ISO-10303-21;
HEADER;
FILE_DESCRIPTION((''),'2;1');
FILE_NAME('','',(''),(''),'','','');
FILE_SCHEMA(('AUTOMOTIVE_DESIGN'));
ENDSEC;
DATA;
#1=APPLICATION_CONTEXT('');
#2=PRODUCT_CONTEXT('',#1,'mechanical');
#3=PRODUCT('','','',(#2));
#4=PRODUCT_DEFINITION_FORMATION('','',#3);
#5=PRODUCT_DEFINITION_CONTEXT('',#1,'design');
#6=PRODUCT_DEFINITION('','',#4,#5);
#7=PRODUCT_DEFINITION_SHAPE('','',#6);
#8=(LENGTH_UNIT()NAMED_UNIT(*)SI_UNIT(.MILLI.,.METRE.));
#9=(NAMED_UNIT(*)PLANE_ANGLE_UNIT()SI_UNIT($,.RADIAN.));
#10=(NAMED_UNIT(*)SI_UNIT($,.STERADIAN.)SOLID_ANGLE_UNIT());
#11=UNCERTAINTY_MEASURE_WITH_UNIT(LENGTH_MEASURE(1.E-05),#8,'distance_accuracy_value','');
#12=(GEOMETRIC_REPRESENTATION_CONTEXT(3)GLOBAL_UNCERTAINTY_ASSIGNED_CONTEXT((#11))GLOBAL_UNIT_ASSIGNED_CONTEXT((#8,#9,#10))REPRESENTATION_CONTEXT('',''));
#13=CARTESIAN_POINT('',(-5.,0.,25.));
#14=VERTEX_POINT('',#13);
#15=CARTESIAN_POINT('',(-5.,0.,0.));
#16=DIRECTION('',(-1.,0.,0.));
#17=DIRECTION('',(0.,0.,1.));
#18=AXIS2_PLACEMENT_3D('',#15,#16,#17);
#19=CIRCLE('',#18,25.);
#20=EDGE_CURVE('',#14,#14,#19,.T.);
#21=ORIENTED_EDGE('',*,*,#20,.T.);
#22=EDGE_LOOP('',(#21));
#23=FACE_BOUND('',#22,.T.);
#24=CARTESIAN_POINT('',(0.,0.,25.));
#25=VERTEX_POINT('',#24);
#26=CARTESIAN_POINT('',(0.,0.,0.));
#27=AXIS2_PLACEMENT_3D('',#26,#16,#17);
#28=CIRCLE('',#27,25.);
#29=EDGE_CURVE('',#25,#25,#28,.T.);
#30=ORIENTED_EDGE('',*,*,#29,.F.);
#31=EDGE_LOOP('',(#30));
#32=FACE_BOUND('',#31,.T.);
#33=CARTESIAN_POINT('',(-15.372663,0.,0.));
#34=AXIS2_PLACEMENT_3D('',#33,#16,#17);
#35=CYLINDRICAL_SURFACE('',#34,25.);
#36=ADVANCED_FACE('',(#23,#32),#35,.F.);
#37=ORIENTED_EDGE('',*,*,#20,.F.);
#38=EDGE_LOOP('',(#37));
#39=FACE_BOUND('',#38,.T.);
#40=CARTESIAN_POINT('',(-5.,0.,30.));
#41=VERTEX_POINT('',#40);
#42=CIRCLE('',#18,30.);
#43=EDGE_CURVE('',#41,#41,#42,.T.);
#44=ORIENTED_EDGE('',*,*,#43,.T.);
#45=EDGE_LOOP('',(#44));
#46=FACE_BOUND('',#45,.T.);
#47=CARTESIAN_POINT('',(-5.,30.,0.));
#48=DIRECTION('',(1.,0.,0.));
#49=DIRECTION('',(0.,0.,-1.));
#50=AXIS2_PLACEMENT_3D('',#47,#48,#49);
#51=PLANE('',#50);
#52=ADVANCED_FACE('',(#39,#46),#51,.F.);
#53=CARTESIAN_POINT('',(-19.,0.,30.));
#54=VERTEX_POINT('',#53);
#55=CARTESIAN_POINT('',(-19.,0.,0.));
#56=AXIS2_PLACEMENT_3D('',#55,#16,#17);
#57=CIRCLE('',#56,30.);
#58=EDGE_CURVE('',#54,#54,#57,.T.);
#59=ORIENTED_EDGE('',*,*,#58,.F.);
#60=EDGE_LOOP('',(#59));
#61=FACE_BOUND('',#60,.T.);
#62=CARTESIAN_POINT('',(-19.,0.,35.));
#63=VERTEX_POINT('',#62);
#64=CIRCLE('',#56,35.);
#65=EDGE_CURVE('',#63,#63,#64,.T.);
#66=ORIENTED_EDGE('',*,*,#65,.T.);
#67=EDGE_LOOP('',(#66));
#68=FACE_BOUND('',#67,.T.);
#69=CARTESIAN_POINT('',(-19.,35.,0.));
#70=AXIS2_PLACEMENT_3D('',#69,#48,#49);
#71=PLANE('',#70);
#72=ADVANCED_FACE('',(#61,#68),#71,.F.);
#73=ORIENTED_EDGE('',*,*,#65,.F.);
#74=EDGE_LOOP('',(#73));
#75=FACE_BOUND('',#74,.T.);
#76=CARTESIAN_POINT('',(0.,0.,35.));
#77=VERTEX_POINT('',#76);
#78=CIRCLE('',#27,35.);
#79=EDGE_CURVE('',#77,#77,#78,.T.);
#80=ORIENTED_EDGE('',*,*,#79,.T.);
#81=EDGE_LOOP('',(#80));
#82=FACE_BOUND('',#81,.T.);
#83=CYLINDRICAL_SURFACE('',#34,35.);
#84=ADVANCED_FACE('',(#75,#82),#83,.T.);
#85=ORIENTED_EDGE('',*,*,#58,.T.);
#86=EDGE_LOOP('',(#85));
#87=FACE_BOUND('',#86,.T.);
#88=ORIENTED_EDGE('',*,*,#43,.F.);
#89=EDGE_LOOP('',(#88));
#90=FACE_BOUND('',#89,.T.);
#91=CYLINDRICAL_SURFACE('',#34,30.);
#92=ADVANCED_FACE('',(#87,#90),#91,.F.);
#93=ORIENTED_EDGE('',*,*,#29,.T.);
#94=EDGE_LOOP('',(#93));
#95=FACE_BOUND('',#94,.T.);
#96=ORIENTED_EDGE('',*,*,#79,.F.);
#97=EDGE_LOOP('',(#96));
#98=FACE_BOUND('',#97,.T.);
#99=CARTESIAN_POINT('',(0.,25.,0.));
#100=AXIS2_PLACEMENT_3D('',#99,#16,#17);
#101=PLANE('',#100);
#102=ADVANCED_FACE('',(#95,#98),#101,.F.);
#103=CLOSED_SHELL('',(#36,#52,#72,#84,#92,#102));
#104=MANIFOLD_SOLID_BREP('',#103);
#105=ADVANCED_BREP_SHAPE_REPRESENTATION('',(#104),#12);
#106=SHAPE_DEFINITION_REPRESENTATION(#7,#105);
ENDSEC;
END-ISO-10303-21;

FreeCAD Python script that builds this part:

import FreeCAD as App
import Part
import Sketcher

V = App.Vector
Q = App.Units.Quantity

doc = App.newDocument("Part")
body = doc.addObject("PartDesign::Body", "Body")

# Sketch on XY plane
sketch1 = body.newObject("Sketcher::SketchObject", "Sketch")
sketch1.AttachmentSupport = (doc.getObject("XY_Plane"), [""])
sketch1.MapMode = "FlatFace"
sketch1.addGeometry([
    Part.LineSegment(V(-19, 35, 0), V(-19, 30, 0)),  # 0
    Part.LineSegment(V(-19, 30, 0), V(-5, 30, 0)),  # 1
    Part.LineSegment(V(-5, 30, 0), V(-5, 25, 0)),  # 2
    Part.LineSegment(V(-5, 25, 0), V(0, 25, 0)),  # 3
    Part.LineSegment(V(0, 25, 0), V(0, 35, 0)),  # 4
    Part.LineSegment(V(0, 35, 0), V(-19, 35, 0)),  # 5
], False)
sketch1.addConstraint([
    Sketcher.Constraint("Coincident", 0, 2, 1, 1),
    Sketcher.Constraint("Coincident", 1, 2, 2, 1),
    Sketcher.Constraint("Coincident", 2, 2, 3, 1),
    Sketcher.Constraint("Coincident", 3, 2, 4, 1),
    Sketcher.Constraint("Coincident", 4, 2, 5, 1),
    Sketcher.Constraint("Coincident", 5, 2, 0, 1),
    Sketcher.Constraint("Vertical", 0),
    Sketcher.Constraint("Horizontal", 1),
    Sketcher.Constraint("Vertical", 2),
    Sketcher.Constraint("Horizontal", 3),
    Sketcher.Constraint("Vertical", 4),
    Sketcher.Constraint("Horizontal", 5),
    Sketcher.Constraint("PointOnObject", 3, 2, -2),
    Sketcher.Constraint("Equal", 3, 0),
    Sketcher.Constraint("Equal", 0, 2),
    Sketcher.Constraint("DistanceX", 1, 1, 1, 2, Q("14 mm")),
    Sketcher.Constraint("DistanceX", 3, 1, 3, 2, Q("5 mm")),
    Sketcher.Constraint("DistanceY", -1, 1, 0, 2, Q("30 mm")),
])
revolution = body.newObject("PartDesign::Revolution", "Revolution")
revolution.Profile = sketch1
revolution.ReferenceAxis = (sketch1, ["H_Axis"])
revolution.Angle = 360

doc.recompute()
